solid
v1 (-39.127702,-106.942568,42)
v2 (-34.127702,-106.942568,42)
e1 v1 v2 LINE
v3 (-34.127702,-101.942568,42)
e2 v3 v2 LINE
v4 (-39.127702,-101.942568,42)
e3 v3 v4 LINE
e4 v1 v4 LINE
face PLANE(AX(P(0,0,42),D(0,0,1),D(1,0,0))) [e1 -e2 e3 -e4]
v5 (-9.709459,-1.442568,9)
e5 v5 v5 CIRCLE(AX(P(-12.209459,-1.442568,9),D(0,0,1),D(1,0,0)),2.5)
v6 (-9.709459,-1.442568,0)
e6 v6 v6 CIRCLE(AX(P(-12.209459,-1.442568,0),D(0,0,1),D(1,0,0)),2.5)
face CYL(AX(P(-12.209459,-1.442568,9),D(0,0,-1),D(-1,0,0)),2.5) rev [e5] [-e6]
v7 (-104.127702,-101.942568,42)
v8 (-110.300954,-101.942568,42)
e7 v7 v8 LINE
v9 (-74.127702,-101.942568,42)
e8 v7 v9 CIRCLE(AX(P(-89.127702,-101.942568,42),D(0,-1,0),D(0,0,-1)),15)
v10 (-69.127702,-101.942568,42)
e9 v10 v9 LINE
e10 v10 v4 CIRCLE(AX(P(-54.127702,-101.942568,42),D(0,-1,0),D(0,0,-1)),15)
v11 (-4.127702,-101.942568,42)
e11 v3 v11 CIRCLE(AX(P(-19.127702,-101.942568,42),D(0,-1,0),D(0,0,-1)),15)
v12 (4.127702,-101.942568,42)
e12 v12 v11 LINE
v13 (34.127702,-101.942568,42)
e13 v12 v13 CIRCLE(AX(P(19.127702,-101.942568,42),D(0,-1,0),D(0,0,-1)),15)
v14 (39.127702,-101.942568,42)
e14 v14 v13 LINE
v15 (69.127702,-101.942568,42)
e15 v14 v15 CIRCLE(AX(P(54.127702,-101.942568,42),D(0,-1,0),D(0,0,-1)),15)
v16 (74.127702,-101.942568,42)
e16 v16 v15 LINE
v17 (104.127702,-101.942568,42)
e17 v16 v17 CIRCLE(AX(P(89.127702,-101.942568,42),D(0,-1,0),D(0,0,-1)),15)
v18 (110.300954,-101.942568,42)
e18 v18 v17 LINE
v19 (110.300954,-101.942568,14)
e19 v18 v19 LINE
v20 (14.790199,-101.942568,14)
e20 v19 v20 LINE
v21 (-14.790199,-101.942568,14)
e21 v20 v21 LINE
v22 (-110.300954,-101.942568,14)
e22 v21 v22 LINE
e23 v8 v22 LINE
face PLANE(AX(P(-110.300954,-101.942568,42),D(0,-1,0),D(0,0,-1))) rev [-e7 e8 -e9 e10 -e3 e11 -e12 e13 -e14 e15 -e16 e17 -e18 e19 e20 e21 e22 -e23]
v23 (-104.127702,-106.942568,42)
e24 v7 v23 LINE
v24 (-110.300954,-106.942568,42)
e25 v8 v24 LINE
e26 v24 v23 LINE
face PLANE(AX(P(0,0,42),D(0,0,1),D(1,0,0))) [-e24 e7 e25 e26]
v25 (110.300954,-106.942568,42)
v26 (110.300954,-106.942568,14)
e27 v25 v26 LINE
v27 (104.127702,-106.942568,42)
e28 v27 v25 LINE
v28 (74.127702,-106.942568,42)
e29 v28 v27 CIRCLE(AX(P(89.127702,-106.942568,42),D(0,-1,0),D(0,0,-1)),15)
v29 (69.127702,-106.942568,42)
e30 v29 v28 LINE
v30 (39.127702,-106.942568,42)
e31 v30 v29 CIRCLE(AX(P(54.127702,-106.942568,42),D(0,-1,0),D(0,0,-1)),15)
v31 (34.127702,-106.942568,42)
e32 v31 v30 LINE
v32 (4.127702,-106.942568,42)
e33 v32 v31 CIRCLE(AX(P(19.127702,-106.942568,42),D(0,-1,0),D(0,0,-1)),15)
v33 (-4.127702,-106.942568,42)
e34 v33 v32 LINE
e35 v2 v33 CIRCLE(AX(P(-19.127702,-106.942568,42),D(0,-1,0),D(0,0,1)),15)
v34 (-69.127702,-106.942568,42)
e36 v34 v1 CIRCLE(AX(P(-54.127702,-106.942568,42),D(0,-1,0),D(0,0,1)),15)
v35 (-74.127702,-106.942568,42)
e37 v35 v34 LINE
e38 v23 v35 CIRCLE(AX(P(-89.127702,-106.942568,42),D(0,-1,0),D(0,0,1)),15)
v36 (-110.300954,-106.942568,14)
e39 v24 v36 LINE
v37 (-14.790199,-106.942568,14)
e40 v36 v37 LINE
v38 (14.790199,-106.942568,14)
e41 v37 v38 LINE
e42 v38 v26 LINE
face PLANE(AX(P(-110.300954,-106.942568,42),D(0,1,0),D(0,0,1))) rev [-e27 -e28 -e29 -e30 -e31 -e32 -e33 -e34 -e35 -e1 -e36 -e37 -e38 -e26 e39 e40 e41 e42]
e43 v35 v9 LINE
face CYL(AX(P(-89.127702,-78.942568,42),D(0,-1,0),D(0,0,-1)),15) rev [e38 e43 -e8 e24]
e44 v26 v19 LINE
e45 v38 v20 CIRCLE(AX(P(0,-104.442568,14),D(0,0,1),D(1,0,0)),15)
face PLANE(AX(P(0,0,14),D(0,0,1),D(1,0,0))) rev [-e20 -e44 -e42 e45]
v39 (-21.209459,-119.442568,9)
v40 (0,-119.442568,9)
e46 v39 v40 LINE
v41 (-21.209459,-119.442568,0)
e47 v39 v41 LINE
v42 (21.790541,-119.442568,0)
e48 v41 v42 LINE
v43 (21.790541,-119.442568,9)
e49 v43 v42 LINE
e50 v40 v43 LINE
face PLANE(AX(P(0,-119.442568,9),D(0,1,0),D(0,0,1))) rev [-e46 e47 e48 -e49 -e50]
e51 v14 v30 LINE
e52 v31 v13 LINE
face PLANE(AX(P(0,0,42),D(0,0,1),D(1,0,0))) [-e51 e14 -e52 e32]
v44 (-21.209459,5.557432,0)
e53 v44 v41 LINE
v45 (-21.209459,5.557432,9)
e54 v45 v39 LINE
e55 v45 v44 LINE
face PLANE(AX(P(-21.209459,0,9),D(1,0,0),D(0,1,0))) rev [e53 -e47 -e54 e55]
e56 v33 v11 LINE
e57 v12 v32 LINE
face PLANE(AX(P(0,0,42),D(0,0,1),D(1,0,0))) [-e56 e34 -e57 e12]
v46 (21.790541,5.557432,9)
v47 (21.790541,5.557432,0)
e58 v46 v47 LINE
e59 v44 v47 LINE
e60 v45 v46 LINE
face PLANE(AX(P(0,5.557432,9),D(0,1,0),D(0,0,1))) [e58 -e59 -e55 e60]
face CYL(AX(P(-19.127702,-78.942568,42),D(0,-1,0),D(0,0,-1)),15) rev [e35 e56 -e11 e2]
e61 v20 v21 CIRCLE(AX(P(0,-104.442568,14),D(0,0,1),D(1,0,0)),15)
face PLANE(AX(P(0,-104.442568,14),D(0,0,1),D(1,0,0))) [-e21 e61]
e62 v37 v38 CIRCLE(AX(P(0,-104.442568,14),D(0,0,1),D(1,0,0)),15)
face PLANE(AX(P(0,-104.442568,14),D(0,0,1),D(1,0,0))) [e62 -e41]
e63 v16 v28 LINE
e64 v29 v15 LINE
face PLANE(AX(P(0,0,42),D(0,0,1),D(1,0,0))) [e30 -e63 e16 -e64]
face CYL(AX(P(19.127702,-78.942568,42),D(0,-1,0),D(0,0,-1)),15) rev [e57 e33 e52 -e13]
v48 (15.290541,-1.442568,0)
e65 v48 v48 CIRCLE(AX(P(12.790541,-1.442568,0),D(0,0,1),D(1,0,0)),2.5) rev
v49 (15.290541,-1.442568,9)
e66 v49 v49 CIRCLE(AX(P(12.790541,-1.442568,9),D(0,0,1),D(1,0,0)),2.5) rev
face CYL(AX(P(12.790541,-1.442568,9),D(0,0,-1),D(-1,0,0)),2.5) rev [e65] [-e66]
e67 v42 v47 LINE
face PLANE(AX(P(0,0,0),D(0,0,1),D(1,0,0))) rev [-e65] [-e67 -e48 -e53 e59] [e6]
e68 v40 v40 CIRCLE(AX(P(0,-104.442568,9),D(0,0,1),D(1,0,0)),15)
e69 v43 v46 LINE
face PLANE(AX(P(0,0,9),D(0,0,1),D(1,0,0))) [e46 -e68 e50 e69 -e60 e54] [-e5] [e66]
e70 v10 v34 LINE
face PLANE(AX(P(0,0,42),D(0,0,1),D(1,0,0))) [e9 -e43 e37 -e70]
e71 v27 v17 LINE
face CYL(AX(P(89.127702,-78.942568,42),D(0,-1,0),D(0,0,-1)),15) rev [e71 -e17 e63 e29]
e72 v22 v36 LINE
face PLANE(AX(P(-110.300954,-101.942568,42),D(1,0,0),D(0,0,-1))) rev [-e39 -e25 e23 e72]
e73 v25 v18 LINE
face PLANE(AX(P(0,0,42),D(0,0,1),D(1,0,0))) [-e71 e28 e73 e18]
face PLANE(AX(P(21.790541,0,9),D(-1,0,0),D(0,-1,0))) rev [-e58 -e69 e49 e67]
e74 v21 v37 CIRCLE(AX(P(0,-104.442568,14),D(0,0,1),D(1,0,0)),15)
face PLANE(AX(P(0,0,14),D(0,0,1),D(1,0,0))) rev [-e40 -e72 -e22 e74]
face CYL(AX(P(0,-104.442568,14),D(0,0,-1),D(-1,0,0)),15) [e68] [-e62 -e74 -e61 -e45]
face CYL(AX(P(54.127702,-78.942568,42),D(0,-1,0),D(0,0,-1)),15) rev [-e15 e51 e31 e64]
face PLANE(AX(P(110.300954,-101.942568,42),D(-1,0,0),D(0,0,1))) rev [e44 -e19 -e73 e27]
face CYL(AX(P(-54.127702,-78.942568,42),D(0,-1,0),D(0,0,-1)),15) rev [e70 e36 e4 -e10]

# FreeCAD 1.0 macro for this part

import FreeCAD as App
import Part
import Sketcher

V = App.Vector
Q = App.Units.Quantity

doc = App.newDocument("Part")
body = doc.addObject("PartDesign::Body", "Body")

sketch1 = body.newObject("Sketcher::SketchObject", "Sketch")
sketch1.AttachmentSupport = (doc.getObject("XY_Plane"), [""])
sketch1.MapMode = "FlatFace"
sketch1.addGeometry(Part.LineSegment(V(-21.2, -119.4, 0), V(21.8, -119.4, 0)), False)
sketch1.addGeometry(Part.LineSegment(V(21.8, -119.4, 0), V(21.8, 5.6, 0)), False)
sketch1.addGeometry(Part.LineSegment(V(21.8, 5.6, 0), V(-21.2, 5.6, 0)), False)
sketch1.addGeometry(Part.LineSegment(V(-21.2, 5.6, 0), V(-21.2, -119.4, 0)), False)
sketch1.addGeometry(Part.Circle(V(-12.2, -1.4, 0), V(0, 0, 1), 2.5), False)
sketch1.addGeometry(Part.Circle(V(12.8, -1.4, 0), V(0, 0, 1), 2.5), False)
sketch1.addConstraint(Sketcher.Constraint("Coincident", 0, 2, 1, 1))
sketch1.addConstraint(Sketcher.Constraint("Coincident", 1, 2, 2, 1))
sketch1.addConstraint(Sketcher.Constraint("Coincident", 2, 2, 3, 1))
sketch1.addConstraint(Sketcher.Constraint("Coincident", 3, 2, 0, 1))
sketch1.addConstraint(Sketcher.Constraint("Horizontal", 0))
sketch1.addConstraint(Sketcher.Constraint("Vertical", 1))
sketch1.addConstraint(Sketcher.Constraint("Horizontal", 2))
sketch1.addConstraint(Sketcher.Constraint("Vertical", 3))
sketch1.addConstraint(Sketcher.Constraint("Equal", 4, 5))
sketch1.addConstraint(Sketcher.Constraint("Horizontal", 4, 3, 5, 3))
sketch1.addConstraint(Sketcher.Constraint("Diameter", 4, Q("5 mm")))
sketch1.addConstraint(Sketcher.Constraint("DistanceX", 0, 1, 0, 2, Q("43 mm")))
sketch1.addConstraint(Sketcher.Constraint("DistanceY", 1, 1, 1, 2, Q("125 mm")))
sketch1.addConstraint(Sketcher.Constraint("DistanceX", 4, 3, 5, 3, Q("25 mm")))
sketch1.addConstraint(Sketcher.Constraint("DistanceX", 5, 3, 0, 2, Q("9 mm")))
sketch1.addConstraint(Sketcher.Constraint("DistanceY", 0, 2, 5, 3, Q("118 mm")))
sketch1.addConstraint(Sketcher.Constraint("DistanceX", 4, 3, -1, 1, Q("12.209459 mm")))
sketch1.addConstraint(Sketcher.Constraint("DistanceY", 4, 3, -1, 1, Q("1.442568 mm")))
pad1 = body.newObject("PartDesign::Pad", "Pad")
pad1.Profile = sketch1
pad1.Length = 9

sketch2 = body.newObject("Sketcher::SketchObject", "Sketch001")
sketch2.AttachmentSupport = (doc.getObject("XY_Plane"), [""])
sketch2.MapMode = "FlatFace"
sketch2.AttachmentOffset = App.Placement(V(0, 0, 9), App.Rotation())
sketch2.addGeometry(Part.Circle(V(0, -104, 0), V(0, 0, 1), 15), False)
sketch2.addConstraint(Sketcher.Constraint("PointOnObject", 0, 3, -2))
sketch2.addConstraint(Sketcher.Constraint("Diameter", 0, Q("30 mm")))
sketch2.addConstraint(Sketcher.Constraint("DistanceY", 0, 3, -1, 1, Q("104.442568 mm")))
pad2 = body.newObject("PartDesign::Pad", "Pad001")
pad2.Profile = sketch2
pad2.Length = 5

sketch3 = body.newObject("Sketcher::SketchObject", "Sketch002")
sketch3.AttachmentSupport = (doc.getObject("XY_Plane"), [""])
sketch3.MapMode = "FlatFace"
sketch3.AttachmentOffset = App.Placement(V(0, 0, 14), App.Rotation())
sketch3.addGeometry(Part.LineSegment(V(-110, -102, 0), V(-110, -107, 0)), False)
sketch3.addGeometry(Part.LineSegment(V(-110, -107, 0), V(110, -107, 0)), False)
sketch3.addGeometry(Part.LineSegment(V(110, -107, 0), V(110, -102, 0)), False)
sketch3.addGeometry(Part.LineSegment(V(110, -102, 0), V(-110, -102, 0)), False)
sketch3.addConstraint(Sketcher.Constraint("Coincident", 0, 2, 1, 1))
sketch3.addConstraint(Sketcher.Constraint("Coincident", 1, 2, 2, 1))
sketch3.addConstraint(Sketcher.Constraint("Coincident", 2, 2, 3, 1))
sketch3.addConstraint(Sketcher.Constraint("Coincident", 3, 2, 0, 1))
sketch3.addConstraint(Sketcher.Constraint("Vertical", 0))
sketch3.addConstraint(Sketcher.Constraint("Horizontal", 1))
sketch3.addConstraint(Sketcher.Constraint("Vertical", 2))
sketch3.addConstraint(Sketcher.Constraint("Horizontal", 3))
sketch3.addConstraint(Sketcher.Constraint("DistanceY", 0, 2, 0, 1, Q("5 mm")))
sketch3.addConstraint(Sketcher.Constraint("DistanceX", 1, 1, 1, 2, Q("220.601908 mm")))
sketch3.addConstraint(Sketcher.Constraint("DistanceX", 0, 2, -1, 1, Q("110.300954 mm")))
sketch3.addConstraint(Sketcher.Constraint("DistanceY", 0, 2, -1, 1, Q("106.942568 mm")))
pad3 = body.newObject("PartDesign::Pad", "Pad002")
pad3.Profile = sketch3
pad3.Length = 28

sketch4 = body.newObject("Sketcher::SketchObject", "Sketch003")
sketch4.AttachmentSupport = (doc.getObject("XZ_Plane"), [""])
sketch4.MapMode = "FlatFace"
sketch4.AttachmentOffset = App.Placement(V(0, 0, 106.942568), App.Rotation())
sketch4.addGeometry(Part.Circle(V(19, 42, 0), V(0, 0, 1), 15), False)
sketch4.addGeometry(Part.Circle(V(54, 42, 0), V(0, 0, 1), 15), False)
sketch4.addGeometry(Part.Circle(V(89, 42, 0), V(0, 0, 1), 15), False)
sketch4.addGeometry(Part.Circle(V(-19, 42, 0), V(0, 0, 1), 15), False)
sketch4.addGeometry(Part.Circle(V(-54, 42, 0), V(0, 0, 1), 15), False)
sketch4.addGeometry(Part.Circle(V(-89, 42, 0), V(0, 0, 1), 15), False)
sketch4.addConstraint(Sketcher.Constraint("Equal", 0, 1))
sketch4.addConstraint(Sketcher.Constraint("Equal", 1, 2))
sketch4.addConstraint(Sketcher.Constraint("Equal", 2, 3))
sketch4.addConstraint(Sketcher.Constraint("Equal", 3, 4))
sketch4.addConstraint(Sketcher.Constraint("Equal", 4, 5))
sketch4.addConstraint(Sketcher.Constraint("Symmetric", 0, 3, 3, 3, -2))
sketch4.addConstraint(Sketcher.Constraint("Symmetric", 1, 3, 4, 3, -2))
sketch4.addConstraint(Sketcher.Constraint("Symmetric", 2, 3, 5, 3, -2))
sketch4.addConstraint(Sketcher.Constraint("Horizontal", 0, 3, 1, 3))
sketch4.addConstraint(Sketcher.Constraint("Horizontal", 1, 3, 2, 3))
sketch4.addConstraint(Sketcher.Constraint("Diameter", 0, Q("30 mm")))
sketch4.addConstraint(Sketcher.Constraint("DistanceY", -1, 1, 0, 3, Q("42 mm")))
sketch4.addConstraint(Sketcher.Constraint("DistanceX", 0, 3, 1, 3, Q("35 mm")))
sketch4.addConstraint(Sketcher.Constraint("DistanceX", 1, 3, 2, 3, Q("35 mm")))
sketch4.addConstraint(Sketcher.Constraint("DistanceX", -1, 1, 0, 3, Q("19.127702 mm")))
pocket1 = body.newObject("PartDesign::Pocket", "Pocket")
pocket1.Profile = sketch4
pocket1.Length = 28

doc.recompute()
